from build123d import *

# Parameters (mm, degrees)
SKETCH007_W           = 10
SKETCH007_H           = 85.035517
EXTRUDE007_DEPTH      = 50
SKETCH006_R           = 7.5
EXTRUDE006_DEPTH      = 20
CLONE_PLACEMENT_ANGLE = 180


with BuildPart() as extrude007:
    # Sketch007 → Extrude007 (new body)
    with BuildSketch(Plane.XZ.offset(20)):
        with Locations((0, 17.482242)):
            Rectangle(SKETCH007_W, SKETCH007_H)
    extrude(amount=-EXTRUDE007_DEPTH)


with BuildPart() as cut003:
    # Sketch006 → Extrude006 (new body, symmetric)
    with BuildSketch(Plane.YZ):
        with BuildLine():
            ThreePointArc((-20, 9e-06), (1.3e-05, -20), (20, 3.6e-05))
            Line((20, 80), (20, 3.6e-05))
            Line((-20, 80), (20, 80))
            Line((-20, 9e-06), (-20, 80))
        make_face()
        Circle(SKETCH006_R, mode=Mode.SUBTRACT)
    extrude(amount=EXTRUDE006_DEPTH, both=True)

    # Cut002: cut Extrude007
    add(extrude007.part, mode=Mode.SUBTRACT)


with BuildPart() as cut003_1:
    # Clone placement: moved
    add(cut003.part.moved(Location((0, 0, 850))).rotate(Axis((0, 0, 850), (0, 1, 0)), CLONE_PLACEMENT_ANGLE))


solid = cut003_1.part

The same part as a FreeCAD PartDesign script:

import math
import FreeCAD as App
import Part
import Sketcher


def add_polygon(sketch, points):
    """Adds a closed chain of lines whose ends are joined by coincident constraints."""
    first, n = sketch.GeometryCount, len(points)
    for a, b in zip(points, points[1:] + points[:1]):
        sketch.addGeometry(Part.LineSegment(App.Vector(*a, 0), App.Vector(*b, 0)), False)
    for i in range(n):
        sketch.addConstraint(Sketcher.Constraint("Coincident", first + i, 2, first + (i + 1) % n, 1))

doc = App.newDocument("Part")
params = doc.addObject("Spreadsheet::Sheet", "Params")
for row, (alias, value) in enumerate([
    ("sketch1_width", "10 mm"),
    ("pad1_length", "50 mm"),
    ("sketch2_diameter", "15 mm"),
    ("sketch2_radius", "20 mm"),
    ("pad2_length", "40 mm"),
], start=1):
    params.set(f"A{row}", alias)
    params.set(f"B{row}", "=" + value)
    params.setAlias(f"B{row}", alias)

body = doc.addObject("PartDesign::Body", "Body")

# Sketch on XZ plane
sketch1 = doc.addObject("Sketcher::SketchObject", "Sketch")
body.addObject(sketch1)
sketch1.AttachmentSupport = (doc.XZ_Plane, [""])
sketch1.MapMode = "FlatFace"
sketch1.AttachmentOffset = App.Placement(App.Vector(0, 0, 20), App.Rotation())
add_polygon(sketch1, [(-5, 60), (-5, -25.035516), (5, -25.035516), (5, 60)])  # lines 0-3
sketch1.addConstraint([
    Sketcher.Constraint("Vertical", 0),
    Sketcher.Constraint("Horizontal", 1),
    Sketcher.Constraint("Vertical", 2),
    Sketcher.Constraint("Horizontal", 3),
    Sketcher.Constraint("DistanceX", 1, 1, 1, 2, 10.0),
    Sketcher.Constraint("DistanceX", 0, 2, -1, 1, 5.0),
    Sketcher.Constraint("DistanceY", -1, 1, 2, 2, 60.0),
    Sketcher.Constraint("DistanceY", 0, 2, 0, 1, 85.035517),
])
sketch1.setExpression("Constraints[8]", "Params.sketch1_width")
pad1 = doc.addObject("PartDesign::Pad", "Pad")
body.addObject(pad1)
pad1.Profile = sketch1
pad1.setExpression("Length", "Params.pad1_length")
pad1.Reversed = True
body2 = doc.addObject("PartDesign::Body", "Body001")

# Sketch on YZ plane
sketch2 = doc.addObject("Sketcher::SketchObject", "Sketch001")
body2.addObject(sketch2)
sketch2.AttachmentSupport = (doc.getObject("YZ_Plane001"), [""])
sketch2.MapMode = "FlatFace"
sketch2.addGeometry([
    Part.ArcOfCircle(Part.Circle(App.Vector(0, 0, 0), App.Vector(0, 0, 1), 20), math.radians(179.999974), math.radians(360.000103)),  # 0
    Part.LineSegment(App.Vector(20, 0.000036, 0), App.Vector(20, 80, 0)),  # 1
    Part.LineSegment(App.Vector(20, 80, 0), App.Vector(-20, 80, 0)),  # 2
    Part.LineSegment(App.Vector(-20, 80, 0), App.Vector(-20, 0.000009, 0)),  # 3
    Part.Circle(App.Vector(0, 0, 0), App.Vector(0, 0, 1), 7.5),  # 4
], False)
sketch2.addConstraint([
    Sketcher.Constraint("Coincident", 0, 2, 1, 1),
    Sketcher.Constraint("Coincident", 1, 2, 2, 1),
    Sketcher.Constraint("Coincident", 2, 2, 3, 1),
    Sketcher.Constraint("Coincident", 3, 2, 0, 1),
    Sketcher.Constraint("Vertical", 1),
    Sketcher.Constraint("Horizontal", 2),
    Sketcher.Constraint("Vertical", 3),
    Sketcher.Constraint("Coincident", 0, 3, -1, 1),
    Sketcher.Constraint("Coincident", 4, 3, -1, 1),
    Sketcher.Constraint("Diameter", 4, 15.0),
    Sketcher.Constraint("Radius", 0, 20.0),
    Sketcher.Constraint("DistanceY", -1, 1, 1, 2, 80.0),
    Sketcher.Constraint("DistanceY", 3, 2, 3, 1, 79.999991),
    Sketcher.Constraint("DistanceY", 1, 1, 1, 2, 79.999964),
])
sketch2.setExpression("Constraints[9]", "Params.sketch2_diameter")
sketch2.setExpression("Constraints[10]", "Params.sketch2_radius")
pad2 = doc.addObject("PartDesign::Pad", "Pad001")
body2.addObject(pad2)
pad2.Profile = sketch2
pad2.setExpression("Length", "Params.pad2_length")
pad2.Midplane = True
doc.recompute()

boolean = doc.addObject("PartDesign::Boolean", "Boolean")
body2.addObject(boolean)
boolean.Type = "Cut"
boolean.addObjects([body])
body3 = doc.addObject("PartDesign::Body", "Body002")
doc.recompute()

body2.Placement = App.Placement(App.Vector(0, 0, 850), App.Rotation(App.Vector(0, 1, 0), 180))
boolean2 = doc.addObject("PartDesign::Boolean", "Boolean001")
body3.addObject(boolean2)
boolean2.Type = "Fuse"
boolean2.addObjects([body2])

doc.recompute()
